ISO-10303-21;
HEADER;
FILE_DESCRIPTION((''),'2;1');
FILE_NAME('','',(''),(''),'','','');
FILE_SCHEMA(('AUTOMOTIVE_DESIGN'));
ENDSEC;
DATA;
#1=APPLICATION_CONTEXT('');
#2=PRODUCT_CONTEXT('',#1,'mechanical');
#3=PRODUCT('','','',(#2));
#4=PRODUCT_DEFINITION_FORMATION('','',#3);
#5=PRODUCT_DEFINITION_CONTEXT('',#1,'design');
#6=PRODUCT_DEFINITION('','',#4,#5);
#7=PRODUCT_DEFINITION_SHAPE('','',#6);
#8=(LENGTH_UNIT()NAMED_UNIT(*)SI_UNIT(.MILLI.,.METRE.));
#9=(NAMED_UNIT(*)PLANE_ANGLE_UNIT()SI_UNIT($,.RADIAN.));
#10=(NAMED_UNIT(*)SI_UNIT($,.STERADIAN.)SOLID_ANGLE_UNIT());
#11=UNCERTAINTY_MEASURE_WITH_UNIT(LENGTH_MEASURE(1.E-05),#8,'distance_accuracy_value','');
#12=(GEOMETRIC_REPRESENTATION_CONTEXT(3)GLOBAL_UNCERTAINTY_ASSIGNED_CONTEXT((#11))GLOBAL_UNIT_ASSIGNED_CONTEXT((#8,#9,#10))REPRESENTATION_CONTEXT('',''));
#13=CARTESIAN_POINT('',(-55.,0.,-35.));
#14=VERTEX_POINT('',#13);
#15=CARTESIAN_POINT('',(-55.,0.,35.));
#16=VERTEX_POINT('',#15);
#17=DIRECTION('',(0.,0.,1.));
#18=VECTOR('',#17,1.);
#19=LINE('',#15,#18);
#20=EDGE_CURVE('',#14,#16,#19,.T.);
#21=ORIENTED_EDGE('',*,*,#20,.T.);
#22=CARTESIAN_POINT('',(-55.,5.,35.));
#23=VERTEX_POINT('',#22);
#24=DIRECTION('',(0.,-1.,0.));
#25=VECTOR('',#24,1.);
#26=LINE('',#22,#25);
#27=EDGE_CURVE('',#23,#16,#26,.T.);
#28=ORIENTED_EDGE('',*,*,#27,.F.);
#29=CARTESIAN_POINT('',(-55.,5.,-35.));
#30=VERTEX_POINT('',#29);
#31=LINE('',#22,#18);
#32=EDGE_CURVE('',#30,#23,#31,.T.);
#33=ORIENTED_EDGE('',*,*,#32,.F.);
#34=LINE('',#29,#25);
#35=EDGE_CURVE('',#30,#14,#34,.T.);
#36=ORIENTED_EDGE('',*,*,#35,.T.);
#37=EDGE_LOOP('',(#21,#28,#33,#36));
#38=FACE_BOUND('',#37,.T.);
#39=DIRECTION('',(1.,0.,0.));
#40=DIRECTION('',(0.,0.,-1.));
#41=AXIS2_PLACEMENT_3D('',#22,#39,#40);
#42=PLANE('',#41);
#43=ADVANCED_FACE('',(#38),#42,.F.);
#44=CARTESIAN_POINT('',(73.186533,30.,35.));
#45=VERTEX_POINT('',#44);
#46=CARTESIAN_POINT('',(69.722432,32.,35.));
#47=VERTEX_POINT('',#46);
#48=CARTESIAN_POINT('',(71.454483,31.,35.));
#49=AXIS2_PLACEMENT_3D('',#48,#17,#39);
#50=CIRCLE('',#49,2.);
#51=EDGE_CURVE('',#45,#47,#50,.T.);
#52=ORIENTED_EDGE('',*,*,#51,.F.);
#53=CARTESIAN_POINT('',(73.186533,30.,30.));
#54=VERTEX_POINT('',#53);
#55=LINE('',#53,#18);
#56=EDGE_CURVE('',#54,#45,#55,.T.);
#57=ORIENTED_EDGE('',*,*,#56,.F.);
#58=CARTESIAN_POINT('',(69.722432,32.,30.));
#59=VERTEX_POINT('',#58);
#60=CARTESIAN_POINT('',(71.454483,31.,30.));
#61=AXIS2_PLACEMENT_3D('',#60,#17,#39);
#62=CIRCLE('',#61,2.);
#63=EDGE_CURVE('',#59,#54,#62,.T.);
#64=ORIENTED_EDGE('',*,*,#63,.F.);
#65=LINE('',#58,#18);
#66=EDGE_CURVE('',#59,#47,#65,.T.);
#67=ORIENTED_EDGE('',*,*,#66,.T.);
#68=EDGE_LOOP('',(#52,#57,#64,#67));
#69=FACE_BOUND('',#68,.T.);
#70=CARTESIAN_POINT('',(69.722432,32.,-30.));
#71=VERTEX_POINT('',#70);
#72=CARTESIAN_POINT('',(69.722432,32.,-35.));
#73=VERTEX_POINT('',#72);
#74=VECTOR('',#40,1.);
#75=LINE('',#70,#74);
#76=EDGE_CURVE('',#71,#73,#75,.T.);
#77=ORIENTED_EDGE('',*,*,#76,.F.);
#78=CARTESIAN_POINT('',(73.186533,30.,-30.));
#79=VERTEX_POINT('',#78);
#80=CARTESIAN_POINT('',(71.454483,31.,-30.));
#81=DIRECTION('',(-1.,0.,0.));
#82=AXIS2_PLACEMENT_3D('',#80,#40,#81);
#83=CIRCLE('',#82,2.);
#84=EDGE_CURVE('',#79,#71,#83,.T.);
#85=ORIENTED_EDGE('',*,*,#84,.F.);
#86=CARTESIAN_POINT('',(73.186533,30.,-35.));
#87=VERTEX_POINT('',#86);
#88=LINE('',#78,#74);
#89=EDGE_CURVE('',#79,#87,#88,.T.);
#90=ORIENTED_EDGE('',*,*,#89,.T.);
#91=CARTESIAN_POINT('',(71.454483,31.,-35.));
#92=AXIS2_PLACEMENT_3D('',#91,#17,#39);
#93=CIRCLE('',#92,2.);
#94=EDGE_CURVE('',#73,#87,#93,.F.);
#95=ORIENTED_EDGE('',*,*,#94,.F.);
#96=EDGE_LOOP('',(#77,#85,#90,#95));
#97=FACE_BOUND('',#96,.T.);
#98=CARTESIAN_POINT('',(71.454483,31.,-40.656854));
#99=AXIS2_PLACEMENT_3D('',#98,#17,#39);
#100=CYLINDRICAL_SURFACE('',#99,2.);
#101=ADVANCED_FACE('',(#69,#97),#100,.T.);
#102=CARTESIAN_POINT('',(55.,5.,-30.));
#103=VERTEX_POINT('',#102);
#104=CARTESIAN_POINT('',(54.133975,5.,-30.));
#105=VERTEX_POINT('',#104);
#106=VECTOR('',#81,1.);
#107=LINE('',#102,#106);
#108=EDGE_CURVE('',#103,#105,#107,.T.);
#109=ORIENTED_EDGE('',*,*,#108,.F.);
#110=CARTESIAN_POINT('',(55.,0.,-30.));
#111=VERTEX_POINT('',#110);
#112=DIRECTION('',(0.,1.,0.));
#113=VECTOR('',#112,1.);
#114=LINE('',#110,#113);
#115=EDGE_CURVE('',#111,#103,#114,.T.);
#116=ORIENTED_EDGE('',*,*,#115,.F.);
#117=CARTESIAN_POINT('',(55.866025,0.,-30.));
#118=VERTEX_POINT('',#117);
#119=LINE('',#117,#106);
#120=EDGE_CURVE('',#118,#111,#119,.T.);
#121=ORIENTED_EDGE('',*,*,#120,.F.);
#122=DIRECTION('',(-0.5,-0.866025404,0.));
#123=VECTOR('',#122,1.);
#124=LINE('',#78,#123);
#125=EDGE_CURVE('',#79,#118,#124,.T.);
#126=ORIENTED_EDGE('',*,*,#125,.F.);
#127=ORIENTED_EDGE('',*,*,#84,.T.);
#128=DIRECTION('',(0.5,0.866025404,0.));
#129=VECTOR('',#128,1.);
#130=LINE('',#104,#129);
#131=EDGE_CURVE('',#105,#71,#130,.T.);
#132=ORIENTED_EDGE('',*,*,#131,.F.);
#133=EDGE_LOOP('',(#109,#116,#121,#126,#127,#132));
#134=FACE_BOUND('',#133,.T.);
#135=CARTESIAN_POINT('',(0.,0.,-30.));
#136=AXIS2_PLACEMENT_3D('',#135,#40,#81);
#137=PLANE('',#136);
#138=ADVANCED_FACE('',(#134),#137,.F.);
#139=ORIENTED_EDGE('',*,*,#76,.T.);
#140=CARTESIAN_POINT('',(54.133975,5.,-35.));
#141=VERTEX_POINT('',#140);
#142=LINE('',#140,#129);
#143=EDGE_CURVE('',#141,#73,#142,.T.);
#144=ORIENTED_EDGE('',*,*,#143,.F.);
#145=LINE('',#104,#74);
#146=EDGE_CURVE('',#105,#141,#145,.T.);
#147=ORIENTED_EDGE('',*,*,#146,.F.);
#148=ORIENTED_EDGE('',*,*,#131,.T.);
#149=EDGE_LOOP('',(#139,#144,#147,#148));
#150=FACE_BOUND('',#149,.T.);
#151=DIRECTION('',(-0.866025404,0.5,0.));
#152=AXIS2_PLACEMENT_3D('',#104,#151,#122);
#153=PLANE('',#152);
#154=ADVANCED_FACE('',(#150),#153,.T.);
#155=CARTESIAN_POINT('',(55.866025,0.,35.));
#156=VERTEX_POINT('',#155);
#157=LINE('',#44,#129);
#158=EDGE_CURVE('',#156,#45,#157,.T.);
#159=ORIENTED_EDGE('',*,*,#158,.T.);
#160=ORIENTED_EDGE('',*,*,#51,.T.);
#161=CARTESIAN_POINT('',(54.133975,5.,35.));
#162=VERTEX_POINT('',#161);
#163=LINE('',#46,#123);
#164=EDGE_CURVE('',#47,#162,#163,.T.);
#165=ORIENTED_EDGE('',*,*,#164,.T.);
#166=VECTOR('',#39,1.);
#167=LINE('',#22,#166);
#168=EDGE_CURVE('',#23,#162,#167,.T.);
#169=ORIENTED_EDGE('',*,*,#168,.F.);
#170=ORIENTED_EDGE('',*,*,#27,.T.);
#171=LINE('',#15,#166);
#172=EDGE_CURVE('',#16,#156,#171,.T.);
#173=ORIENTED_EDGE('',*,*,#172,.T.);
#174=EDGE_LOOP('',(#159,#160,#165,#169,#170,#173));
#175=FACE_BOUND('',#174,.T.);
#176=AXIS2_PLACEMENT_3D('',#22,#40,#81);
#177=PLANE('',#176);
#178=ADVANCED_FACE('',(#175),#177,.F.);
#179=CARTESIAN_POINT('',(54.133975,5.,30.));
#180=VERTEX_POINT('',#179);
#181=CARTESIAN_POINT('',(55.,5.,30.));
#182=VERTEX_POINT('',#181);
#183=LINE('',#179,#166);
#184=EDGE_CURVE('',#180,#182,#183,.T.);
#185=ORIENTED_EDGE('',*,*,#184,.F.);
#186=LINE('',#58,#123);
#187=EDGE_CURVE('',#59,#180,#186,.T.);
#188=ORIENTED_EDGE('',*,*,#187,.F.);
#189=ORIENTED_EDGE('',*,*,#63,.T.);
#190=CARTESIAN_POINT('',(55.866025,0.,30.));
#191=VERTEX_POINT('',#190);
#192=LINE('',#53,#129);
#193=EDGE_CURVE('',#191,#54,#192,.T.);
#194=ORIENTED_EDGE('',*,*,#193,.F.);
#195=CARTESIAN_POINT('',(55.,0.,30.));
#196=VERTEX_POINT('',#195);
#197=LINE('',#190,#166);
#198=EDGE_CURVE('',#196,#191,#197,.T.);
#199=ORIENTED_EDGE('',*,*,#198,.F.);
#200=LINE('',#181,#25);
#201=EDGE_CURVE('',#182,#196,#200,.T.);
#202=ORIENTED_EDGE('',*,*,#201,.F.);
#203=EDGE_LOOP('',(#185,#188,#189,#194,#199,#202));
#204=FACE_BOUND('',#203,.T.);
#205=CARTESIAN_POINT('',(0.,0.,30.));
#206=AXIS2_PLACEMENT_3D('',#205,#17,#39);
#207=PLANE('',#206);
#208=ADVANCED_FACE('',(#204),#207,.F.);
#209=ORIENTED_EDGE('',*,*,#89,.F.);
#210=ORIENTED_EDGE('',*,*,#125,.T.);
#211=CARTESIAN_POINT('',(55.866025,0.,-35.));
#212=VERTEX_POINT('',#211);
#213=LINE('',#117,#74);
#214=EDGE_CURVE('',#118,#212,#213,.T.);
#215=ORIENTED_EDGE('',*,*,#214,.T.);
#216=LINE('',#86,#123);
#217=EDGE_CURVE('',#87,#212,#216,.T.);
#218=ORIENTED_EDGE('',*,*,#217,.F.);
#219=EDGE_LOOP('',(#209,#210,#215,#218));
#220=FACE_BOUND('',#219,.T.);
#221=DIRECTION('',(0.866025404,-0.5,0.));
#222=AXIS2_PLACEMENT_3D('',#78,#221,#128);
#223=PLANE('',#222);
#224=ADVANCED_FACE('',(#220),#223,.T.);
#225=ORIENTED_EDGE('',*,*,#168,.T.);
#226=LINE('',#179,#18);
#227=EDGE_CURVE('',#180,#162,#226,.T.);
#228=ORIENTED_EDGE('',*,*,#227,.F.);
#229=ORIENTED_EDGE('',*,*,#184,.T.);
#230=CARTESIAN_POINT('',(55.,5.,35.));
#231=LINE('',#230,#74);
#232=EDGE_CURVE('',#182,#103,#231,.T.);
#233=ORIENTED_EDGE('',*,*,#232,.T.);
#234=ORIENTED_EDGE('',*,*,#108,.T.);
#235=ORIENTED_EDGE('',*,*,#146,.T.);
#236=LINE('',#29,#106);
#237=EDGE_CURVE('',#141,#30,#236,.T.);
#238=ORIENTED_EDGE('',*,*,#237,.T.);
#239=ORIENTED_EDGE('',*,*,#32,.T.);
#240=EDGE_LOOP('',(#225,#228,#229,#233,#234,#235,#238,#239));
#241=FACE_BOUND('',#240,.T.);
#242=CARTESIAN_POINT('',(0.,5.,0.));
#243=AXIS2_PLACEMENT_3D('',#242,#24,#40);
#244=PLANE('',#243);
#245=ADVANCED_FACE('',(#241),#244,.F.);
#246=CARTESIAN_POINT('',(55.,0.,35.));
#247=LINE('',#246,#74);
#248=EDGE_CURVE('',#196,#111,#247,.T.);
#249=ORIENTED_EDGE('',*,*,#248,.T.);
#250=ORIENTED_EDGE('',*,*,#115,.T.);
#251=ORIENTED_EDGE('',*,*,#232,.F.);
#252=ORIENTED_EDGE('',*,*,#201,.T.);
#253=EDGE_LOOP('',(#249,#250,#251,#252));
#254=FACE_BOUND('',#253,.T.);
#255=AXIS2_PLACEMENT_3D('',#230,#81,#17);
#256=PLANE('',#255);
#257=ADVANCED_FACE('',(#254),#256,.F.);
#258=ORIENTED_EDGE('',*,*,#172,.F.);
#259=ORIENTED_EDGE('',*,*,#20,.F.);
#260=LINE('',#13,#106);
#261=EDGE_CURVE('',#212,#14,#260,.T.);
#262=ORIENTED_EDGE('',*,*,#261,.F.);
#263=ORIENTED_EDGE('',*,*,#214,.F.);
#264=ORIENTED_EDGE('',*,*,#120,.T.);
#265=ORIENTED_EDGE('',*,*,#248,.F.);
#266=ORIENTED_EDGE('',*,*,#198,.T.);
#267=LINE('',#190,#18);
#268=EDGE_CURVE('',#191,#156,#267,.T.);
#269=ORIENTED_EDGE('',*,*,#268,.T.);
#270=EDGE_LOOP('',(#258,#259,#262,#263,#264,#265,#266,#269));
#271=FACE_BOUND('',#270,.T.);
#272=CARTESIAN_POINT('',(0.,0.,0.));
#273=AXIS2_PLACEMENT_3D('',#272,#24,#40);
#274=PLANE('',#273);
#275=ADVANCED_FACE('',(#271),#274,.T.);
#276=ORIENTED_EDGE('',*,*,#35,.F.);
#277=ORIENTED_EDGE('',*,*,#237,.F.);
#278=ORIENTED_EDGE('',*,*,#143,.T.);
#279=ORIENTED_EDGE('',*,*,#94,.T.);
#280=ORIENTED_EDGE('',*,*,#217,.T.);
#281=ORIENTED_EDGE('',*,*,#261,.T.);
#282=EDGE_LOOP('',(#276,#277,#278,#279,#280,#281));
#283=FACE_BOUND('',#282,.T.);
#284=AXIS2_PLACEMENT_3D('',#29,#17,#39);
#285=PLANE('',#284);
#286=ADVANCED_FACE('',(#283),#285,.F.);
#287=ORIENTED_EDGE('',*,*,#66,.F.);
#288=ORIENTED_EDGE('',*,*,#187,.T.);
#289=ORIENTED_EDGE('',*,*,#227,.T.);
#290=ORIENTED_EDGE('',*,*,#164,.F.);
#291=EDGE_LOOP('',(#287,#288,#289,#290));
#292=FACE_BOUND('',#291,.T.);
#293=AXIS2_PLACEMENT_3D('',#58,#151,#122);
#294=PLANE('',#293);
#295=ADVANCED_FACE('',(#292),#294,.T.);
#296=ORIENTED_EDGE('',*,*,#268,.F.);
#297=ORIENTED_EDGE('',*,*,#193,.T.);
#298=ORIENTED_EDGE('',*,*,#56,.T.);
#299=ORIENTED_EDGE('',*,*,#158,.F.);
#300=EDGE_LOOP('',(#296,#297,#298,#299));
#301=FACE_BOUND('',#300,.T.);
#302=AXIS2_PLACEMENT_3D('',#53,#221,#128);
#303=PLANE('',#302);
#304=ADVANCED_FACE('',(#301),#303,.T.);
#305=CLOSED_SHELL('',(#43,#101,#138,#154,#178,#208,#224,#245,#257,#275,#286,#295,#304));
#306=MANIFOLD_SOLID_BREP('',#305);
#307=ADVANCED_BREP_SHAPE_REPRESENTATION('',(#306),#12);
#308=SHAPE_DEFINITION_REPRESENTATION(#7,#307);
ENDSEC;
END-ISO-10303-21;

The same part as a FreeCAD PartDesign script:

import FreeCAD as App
import Part
import Sketcher
Q = App.Units.Quantity


def add_polygon(sketch, points):
    """Adds a closed chain of lines whose ends are joined by coincident constraints."""
    first, n = sketch.GeometryCount, len(points)
    for a, b in zip(points, points[1:] + points[:1]):
        sketch.addGeometry(Part.LineSegment(App.Vector(*a, 0), App.Vector(*b, 0)), False)
    for i in range(n):
        sketch.addConstraint(Sketcher.Constraint("Coincident", first + i, 2, first + (i + 1) % n, 1))

doc = App.newDocument("Part")
body = doc.addObject("PartDesign::Body", "Body")

sketch1 = doc.addObject("Sketcher::SketchObject", "Sketch")
body.addObject(sketch1)
sketch1.AttachmentSupport = (doc.XZ_Plane, [""])
sketch1.MapMode = "FlatFace"
add_polygon(sketch1, [(-55, -35), (-55, 35), (55, 35), (55, -35)])
sketch1.addConstraint([
    Sketcher.Constraint("Vertical", 0),
    Sketcher.Constraint("Horizontal", 1),
    Sketcher.Constraint("Vertical", 2),
    Sketcher.Constraint("Horizontal", 3),
    Sketcher.Constraint("Symmetric", 0, 2, 2, 2, -1, 1),
    Sketcher.Constraint("DistanceX", 1, 1, 1, 2, 110.0),
    Sketcher.Constraint("DistanceY", 0, 1, 0, 2, 70.0),
])
pad1 = doc.addObject("PartDesign::Pad", "Pad")
body.addObject(pad1)
pad1.Profile = sketch1
pad1.Length = 5
pad1.Reversed = True

sketch2 = doc.addObject("Sketcher::SketchObject", "Sketch001")
body.addObject(sketch2)
sketch2.AttachmentSupport = (doc.XY_Plane, [""])
sketch2.MapMode = "FlatFace"
sketch2.AttachmentOffset = App.Placement(App.Vector(0, 0, 35), App.Rotation())
add_polygon(sketch2, [(73.2, 30), (69.7, 32), (54.1, 5), (55, 5), (55, 0), (55.9, 0)])
sketch2.addConstraint([
    Sketcher.Constraint("Horizontal", 2),
    Sketcher.Constraint("Vertical", 3),
    Sketcher.Constraint("Horizontal", 4),
    Sketcher.Constraint("PointOnObject", 3, 2, -1),
    Sketcher.Constraint("Perpendicular", 0, 1),
    Sketcher.Constraint("Parallel", 1, 5),
    Sketcher.Constraint("Equal", 2, 4),
    Sketcher.Constraint("DistanceY", 3, 2, 3, 1, 5.0),
    Sketcher.Constraint("Angle", 0, Q("150 deg")),
    Sketcher.Constraint("Distance", 0, 4.0),
    Sketcher.Constraint("DistanceY", -1, 1, 0, 2, 32.0),
    Sketcher.Constraint("DistanceX", -1, 1, 2, 2, 55.0),
])
pad2 = doc.addObject("PartDesign::Pad", "Pad001")
body.addObject(pad2)
pad2.Profile = sketch2
pad2.Length = 5
pad2.Reversed = True

sketch3 = doc.addObject("Sketcher::SketchObject", "Sketch002")
body.addObject(sketch3)
sketch3.AttachmentSupport = (doc.XY_Plane, [""])
sketch3.MapMode = "FlatFace"
sketch3.AttachmentOffset = App.Placement(App.Vector(0, 0, -35), App.Rotation())
add_polygon(sketch3, [(54.1, 5), (69.7, 32), (73.2, 30), (55.9, 0), (55, 0), (55, 5)])
sketch3.addConstraint([
    Sketcher.Constraint("Horizontal", 3),
    Sketcher.Constraint("Vertical", 4),
    Sketcher.Constraint("Horizontal", 5),
    Sketcher.Constraint("PointOnObject", 2, 2, -1),
    Sketcher.Constraint("Perpendicular", 0, 1),
    Sketcher.Constraint("Perpendicular", 1, 2),
    Sketcher.Constraint("Equal", 3, 5),
    Sketcher.Constraint("DistanceY", 4, 1, 4, 2, 5.0),
    Sketcher.Constraint("Angle", 0, Q("60 deg")),
    Sketcher.Constraint("Distance", 1, 4.0),
    Sketcher.Constraint("DistanceY", -1, 1, 0, 2, 32.0),
    Sketcher.Constraint("DistanceX", -1, 1, 3, 2, 55.0),
])
pad3 = doc.addObject("PartDesign::Pad", "Pad002")
body.addObject(pad3)
pad3.Profile = sketch3
pad3.Length = 5

sketch4 = doc.addObject("Sketcher::SketchObject", "Sketch003")
body.addObject(sketch4)
sketch4.AttachmentSupport = (doc.XY_Plane, [""])
sketch4.MapMode = "FlatFace"
sketch4.AttachmentOffset = App.Placement(App.Vector(0, 0, -35), App.Rotation())
sketch4.addGeometry(Part.Circle(App.Vector(71.5, 31, 0), App.Vector(0, 0, 1), 2), False)
sketch4.addConstraint([
    Sketcher.Constraint("Diameter", 0, 4.0),
    Sketcher.Constraint("DistanceY", -1, 1, 0, 3, 31.0),
    Sketcher.Constraint("DistanceX", -1, 1, 0, 3, 71.454483),
])
pad4 = doc.addObject("PartDesign::Pad", "Pad003")
body.addObject(pad4)
pad4.Profile = sketch4
pad4.Length = 70

doc.recompute()
